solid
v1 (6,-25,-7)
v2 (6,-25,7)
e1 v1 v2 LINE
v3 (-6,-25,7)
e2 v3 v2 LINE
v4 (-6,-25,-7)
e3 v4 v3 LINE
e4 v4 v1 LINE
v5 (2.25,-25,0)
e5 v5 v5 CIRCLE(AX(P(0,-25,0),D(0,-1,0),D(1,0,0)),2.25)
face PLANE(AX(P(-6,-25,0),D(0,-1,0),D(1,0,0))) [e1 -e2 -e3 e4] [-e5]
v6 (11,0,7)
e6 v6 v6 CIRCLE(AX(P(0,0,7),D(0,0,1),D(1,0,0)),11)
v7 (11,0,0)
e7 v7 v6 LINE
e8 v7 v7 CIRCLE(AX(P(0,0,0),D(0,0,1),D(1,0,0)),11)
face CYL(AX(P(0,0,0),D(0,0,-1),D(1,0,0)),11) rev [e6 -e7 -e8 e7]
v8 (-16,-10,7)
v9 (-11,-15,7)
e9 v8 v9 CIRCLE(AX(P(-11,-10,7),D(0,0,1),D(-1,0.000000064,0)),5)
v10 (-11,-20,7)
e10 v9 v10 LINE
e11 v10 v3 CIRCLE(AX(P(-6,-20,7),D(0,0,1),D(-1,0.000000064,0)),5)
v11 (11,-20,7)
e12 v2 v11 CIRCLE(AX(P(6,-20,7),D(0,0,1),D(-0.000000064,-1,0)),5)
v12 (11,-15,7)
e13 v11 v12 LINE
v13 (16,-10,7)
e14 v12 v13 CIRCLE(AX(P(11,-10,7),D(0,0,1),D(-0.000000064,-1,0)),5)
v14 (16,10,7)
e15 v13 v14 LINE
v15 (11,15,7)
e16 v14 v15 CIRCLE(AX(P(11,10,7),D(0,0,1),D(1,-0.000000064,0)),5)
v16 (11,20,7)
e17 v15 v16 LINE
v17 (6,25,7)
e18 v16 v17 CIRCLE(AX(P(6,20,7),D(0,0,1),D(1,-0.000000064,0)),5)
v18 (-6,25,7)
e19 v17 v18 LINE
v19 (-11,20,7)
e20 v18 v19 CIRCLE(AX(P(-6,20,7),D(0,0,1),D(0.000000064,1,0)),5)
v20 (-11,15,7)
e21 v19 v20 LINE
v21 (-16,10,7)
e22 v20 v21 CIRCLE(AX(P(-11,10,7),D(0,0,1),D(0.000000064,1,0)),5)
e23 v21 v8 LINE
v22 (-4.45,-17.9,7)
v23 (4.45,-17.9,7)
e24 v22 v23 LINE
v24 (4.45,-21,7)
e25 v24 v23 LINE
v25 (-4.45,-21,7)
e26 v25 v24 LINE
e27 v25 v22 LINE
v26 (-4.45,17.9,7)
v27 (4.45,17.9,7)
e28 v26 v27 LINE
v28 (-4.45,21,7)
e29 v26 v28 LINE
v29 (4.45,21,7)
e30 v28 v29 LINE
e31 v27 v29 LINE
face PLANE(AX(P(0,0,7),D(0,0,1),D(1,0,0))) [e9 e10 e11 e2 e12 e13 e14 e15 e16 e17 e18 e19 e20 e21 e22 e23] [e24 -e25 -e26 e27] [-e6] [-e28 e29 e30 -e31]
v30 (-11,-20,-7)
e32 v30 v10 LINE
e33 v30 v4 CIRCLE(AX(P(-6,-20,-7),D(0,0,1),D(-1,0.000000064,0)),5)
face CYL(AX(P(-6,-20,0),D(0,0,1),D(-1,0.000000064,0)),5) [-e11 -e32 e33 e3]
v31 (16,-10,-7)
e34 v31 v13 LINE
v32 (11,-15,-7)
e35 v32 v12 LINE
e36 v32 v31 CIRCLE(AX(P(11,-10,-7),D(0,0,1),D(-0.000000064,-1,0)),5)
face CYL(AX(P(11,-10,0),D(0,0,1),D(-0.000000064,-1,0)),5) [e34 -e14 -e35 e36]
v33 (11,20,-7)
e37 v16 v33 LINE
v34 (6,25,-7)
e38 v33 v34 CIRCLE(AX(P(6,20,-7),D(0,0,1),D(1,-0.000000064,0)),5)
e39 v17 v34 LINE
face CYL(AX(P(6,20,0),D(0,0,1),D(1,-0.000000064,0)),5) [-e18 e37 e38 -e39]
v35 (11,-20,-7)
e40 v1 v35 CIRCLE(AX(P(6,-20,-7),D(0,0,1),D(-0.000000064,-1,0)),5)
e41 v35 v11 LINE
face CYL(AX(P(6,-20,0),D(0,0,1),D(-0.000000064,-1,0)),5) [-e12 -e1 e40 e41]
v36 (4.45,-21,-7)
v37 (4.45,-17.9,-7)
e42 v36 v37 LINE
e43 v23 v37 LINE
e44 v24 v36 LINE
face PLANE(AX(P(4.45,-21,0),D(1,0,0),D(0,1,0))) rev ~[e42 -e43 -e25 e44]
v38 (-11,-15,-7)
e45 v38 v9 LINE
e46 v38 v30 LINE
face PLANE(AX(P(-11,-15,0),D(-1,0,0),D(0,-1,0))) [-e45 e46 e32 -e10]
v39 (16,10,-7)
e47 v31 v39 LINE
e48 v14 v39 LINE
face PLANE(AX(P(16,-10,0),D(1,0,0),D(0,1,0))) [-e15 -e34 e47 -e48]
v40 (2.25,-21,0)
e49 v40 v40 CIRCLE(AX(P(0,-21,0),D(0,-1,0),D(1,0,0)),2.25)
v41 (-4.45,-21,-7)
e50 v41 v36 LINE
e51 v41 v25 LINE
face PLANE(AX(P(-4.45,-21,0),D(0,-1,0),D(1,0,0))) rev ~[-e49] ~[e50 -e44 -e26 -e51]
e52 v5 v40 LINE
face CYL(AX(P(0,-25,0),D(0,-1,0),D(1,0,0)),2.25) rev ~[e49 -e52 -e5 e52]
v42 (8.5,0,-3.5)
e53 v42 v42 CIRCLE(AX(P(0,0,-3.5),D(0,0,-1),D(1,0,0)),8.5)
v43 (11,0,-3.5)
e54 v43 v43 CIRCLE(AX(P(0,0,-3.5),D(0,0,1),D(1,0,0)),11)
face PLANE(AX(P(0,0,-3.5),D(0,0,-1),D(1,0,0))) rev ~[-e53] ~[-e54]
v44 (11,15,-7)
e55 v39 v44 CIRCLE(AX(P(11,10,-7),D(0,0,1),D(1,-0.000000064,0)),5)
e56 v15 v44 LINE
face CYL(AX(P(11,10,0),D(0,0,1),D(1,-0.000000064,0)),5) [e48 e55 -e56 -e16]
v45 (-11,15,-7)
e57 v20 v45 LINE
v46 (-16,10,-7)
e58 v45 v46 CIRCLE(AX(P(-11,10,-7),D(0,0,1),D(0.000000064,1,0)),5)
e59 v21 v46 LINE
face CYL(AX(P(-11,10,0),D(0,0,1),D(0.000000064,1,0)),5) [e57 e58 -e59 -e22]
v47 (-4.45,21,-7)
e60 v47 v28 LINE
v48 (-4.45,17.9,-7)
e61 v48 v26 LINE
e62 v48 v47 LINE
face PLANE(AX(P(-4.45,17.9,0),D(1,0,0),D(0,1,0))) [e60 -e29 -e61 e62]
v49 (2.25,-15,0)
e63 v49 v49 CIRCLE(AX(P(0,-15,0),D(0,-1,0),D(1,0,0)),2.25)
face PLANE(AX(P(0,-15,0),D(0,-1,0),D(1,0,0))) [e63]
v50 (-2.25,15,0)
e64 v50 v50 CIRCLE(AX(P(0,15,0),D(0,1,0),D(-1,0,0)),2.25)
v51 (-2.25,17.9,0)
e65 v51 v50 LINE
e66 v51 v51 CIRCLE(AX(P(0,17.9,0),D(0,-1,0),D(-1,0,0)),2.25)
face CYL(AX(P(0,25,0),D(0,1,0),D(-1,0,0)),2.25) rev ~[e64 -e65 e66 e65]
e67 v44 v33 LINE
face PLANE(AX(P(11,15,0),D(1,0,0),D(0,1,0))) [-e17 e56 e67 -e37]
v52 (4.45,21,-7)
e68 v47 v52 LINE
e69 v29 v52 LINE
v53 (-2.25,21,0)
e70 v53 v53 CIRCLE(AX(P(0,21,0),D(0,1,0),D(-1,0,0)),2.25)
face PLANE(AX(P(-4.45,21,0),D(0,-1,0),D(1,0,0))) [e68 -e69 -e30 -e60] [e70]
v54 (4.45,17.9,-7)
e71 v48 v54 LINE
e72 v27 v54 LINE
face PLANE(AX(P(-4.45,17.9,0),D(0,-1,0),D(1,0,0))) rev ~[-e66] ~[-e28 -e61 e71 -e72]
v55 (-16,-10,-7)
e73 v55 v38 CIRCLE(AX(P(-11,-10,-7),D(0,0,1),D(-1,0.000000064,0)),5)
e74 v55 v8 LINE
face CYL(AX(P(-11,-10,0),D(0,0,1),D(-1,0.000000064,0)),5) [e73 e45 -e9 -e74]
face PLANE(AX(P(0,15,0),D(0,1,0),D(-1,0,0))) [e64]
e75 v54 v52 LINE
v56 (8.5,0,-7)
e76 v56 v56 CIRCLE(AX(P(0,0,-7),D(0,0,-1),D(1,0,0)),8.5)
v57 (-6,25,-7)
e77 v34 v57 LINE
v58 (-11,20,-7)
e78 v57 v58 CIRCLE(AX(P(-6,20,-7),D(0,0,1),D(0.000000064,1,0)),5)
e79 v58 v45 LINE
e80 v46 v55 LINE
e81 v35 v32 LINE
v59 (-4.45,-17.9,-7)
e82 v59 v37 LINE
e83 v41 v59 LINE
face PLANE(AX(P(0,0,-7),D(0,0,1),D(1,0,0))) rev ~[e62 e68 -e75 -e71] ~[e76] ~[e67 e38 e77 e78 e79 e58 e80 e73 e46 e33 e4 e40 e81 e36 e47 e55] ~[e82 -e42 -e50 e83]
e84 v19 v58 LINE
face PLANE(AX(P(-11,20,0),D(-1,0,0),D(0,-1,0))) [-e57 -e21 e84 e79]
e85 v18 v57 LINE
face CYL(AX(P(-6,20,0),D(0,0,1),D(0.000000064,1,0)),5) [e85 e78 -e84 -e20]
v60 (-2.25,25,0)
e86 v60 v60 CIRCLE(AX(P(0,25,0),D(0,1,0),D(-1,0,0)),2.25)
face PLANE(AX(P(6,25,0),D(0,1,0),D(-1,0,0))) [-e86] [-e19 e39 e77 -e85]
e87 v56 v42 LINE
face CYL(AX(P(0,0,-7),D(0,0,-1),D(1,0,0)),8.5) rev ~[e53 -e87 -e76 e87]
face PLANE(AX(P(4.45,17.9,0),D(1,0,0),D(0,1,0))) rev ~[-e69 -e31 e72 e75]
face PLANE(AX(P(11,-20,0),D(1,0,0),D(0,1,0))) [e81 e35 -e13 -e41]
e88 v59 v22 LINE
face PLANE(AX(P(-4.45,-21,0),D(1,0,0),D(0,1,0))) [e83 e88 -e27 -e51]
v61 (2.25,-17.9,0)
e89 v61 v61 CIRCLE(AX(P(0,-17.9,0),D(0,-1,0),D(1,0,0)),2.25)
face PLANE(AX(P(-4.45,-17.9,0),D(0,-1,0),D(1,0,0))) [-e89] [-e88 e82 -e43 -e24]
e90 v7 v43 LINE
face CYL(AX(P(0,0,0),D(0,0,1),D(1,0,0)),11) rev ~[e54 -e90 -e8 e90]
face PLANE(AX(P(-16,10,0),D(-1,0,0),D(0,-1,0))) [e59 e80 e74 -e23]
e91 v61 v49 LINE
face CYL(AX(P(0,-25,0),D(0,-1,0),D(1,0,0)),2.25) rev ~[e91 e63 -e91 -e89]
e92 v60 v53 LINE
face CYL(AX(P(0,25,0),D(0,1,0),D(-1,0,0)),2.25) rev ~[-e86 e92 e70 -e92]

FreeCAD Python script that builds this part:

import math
import FreeCAD as App
import Part
import Sketcher

V = App.Vector
Q = App.Units.Quantity

doc = App.newDocument("Part")
body = doc.addObject("PartDesign::Body", "Body")

sketch1 = body.newObject("Sketcher::SketchObject", "Sketch")
sketch1.AttachmentSupport = (doc.getObject("XY_Plane"), [""])
sketch1.MapMode = "FlatFace"
sketch1.addGeometry([
    Part.LineSegment(V(-16, 10, 0), V(-16, -10, 0)),
    Part.ArcOfCircle(Part.Circle(V(-11, -10, 0), V(0, 0, 1), 5), math.radians(180), math.radians(270)),
    Part.LineSegment(V(-11, -15, 0), V(-11, -20, 0)),
    Part.ArcOfCircle(Part.Circle(V(-6, -20, 0), V(0, 0, 1), 5), math.radians(180), math.radians(270)),
    Part.LineSegment(V(-6, -25, 0), V(6, -25, 0)),
    Part.ArcOfCircle(Part.Circle(V(6, -20, 0), V(0, 0, 1), 5), math.radians(-90), math.radians(0)),
    Part.LineSegment(V(11, -20, 0), V(11, -15, 0)),
    Part.ArcOfCircle(Part.Circle(V(11, -10, 0), V(0, 0, 1), 5), math.radians(-90), math.radians(0)),
    Part.LineSegment(V(16, -10, 0), V(16, 10, 0)),
    Part.ArcOfCircle(Part.Circle(V(11, 10, 0), V(0, 0, 1), 5), math.radians(0), math.radians(90)),
    Part.LineSegment(V(11, 15, 0), V(11, 20, 0)),
    Part.ArcOfCircle(Part.Circle(V(6, 20, 0), V(0, 0, 1), 5), math.radians(0), math.radians(90)),
    Part.LineSegment(V(6, 25, 0), V(-6, 25, 0)),
    Part.ArcOfCircle(Part.Circle(V(-6, 20, 0), V(0, 0, 1), 5), math.radians(90), math.radians(180)),
    Part.LineSegment(V(-11, 20, 0), V(-11, 15, 0)),
    Part.ArcOfCircle(Part.Circle(V(-11, 10, 0), V(0, 0, 1), 5), math.radians(90), math.radians(180)),
    Part.LineSegment(V(4.5, -21, 0), V(-4.5, -21, 0)),
    Part.LineSegment(V(-4.5, -21, 0), V(-4.5, -17.9, 0)),
    Part.LineSegment(V(-4.5, -17.9, 0), V(4.5, -17.9, 0)),
    Part.LineSegment(V(4.5, -17.9, 0), V(4.5, -21, 0)),
    Part.Circle(V(0, 0, 0), V(0, 0, 1), 11),
    Part.LineSegment(V(4.5, 17.9, 0), V(-4.5, 17.9, 0)),
    Part.LineSegment(V(-4.5, 17.9, 0), V(-4.5, 21, 0)),
    Part.LineSegment(V(-4.5, 21, 0), V(4.5, 21, 0)),
    Part.LineSegment(V(4.5, 21, 0), V(4.5, 17.9, 0)),
], False)
sketch1.addConstraint([
    Sketcher.Constraint("Tangent", 0, 2, 1, 1),
    Sketcher.Constraint("Coincident", 1, 2, 2, 1),
    Sketcher.Constraint("Tangent", 2, 2, 3, 1),
    Sketcher.Constraint("Tangent", 3, 2, 4, 1),
    Sketcher.Constraint("Tangent", 4, 2, 5, 1),
    Sketcher.Constraint("Tangent", 5, 2, 6, 1),
    Sketcher.Constraint("Coincident", 6, 2, 7, 1),
    Sketcher.Constraint("Tangent", 7, 2, 8, 1),
    Sketcher.Constraint("Tangent", 8, 2, 9, 1),
    Sketcher.Constraint("Coincident", 9, 2, 10, 1),
    Sketcher.Constraint("Tangent", 10, 2, 11, 1),
    Sketcher.Constraint("Tangent", 11, 2, 12, 1),
    Sketcher.Constraint("Tangent", 12, 2, 13, 1),
    Sketcher.Constraint("Tangent", 13, 2, 14, 1),
    Sketcher.Constraint("Coincident", 14, 2, 15, 1),
    Sketcher.Constraint("Tangent", 15, 2, 0, 1),
    Sketcher.Constraint("Coincident", 16, 2, 17, 1),
    Sketcher.Constraint("Coincident", 17, 2, 18, 1),
    Sketcher.Constraint("Coincident", 18, 2, 19, 1),
    Sketcher.Constraint("Coincident", 19, 2, 16, 1),
    Sketcher.Constraint("Coincident", 21, 2, 22, 1),
    Sketcher.Constraint("Coincident", 22, 2, 23, 1),
    Sketcher.Constraint("Coincident", 23, 2, 24, 1),
    Sketcher.Constraint("Coincident", 24, 2, 21, 1),
    Sketcher.Constraint("Vertical", 0),
    Sketcher.Constraint("Vertical", 2),
    Sketcher.Constraint("Horizontal", 4),
    Sketcher.Constraint("Vertical", 6),
    Sketcher.Constraint("Vertical", 8),
    Sketcher.Constraint("Vertical", 10),
    Sketcher.Constraint("Horizontal", 12),
    Sketcher.Constraint("Vertical", 14),
    Sketcher.Constraint("Horizontal", 16),
    Sketcher.Constraint("Vertical", 17),
    Sketcher.Constraint("Horizontal", 18),
    Sketcher.Constraint("Vertical", 19),
    Sketcher.Constraint("Horizontal", 21),
    Sketcher.Constraint("Vertical", 22),
    Sketcher.Constraint("Horizontal", 23),
    Sketcher.Constraint("Vertical", 24),
    Sketcher.Constraint("Coincident", 20, 3, -1, 1),
    Sketcher.Constraint("Equal", 1, 3),
    Sketcher.Constraint("Equal", 3, 5),
    Sketcher.Constraint("Equal", 5, 7),
    Sketcher.Constraint("Equal", 7, 9),
    Sketcher.Constraint("Equal", 9, 11),
    Sketcher.Constraint("Equal", 11, 13),
    Sketcher.Constraint("Equal", 13, 15),
    Sketcher.Constraint("Symmetric", 1, 3, 9, 3, -1, 1),
    Sketcher.Constraint("Symmetric", 3, 3, 11, 3, -1, 1),
    Sketcher.Constraint("Symmetric", 6, 2, 14, 2, -1, 1),
    Sketcher.Constraint("Symmetric", 18, 2, 21, 2, -1, 1),
    Sketcher.Constraint("Symmetric", 16, 2, 23, 2, -1, 1),
    Sketcher.Constraint("Symmetric", 1, 2, 6, 2, -2),
    Sketcher.Constraint("Vertical", 15, 3, 1, 2),
    Sketcher.Constraint("Vertical", 17, 2, 21, 2),
    Sketcher.Constraint("Diameter", 20, Q("22 mm")),
    Sketcher.Constraint("Radius", 1, Q("5 mm")),
    Sketcher.Constraint("DistanceX", 4, 1, 4, 2, Q("12 mm")),
    Sketcher.Constraint("DistanceY", 0, 2, 0, 1, Q("20 mm")),
    Sketcher.Constraint("DistanceY", 2, 2, 2, 1, Q("5 mm")),
    Sketcher.Constraint("DistanceX", 16, 2, 16, 1, Q("8.9 mm")),
    Sketcher.Constraint("DistanceY", 17, 1, 17, 2, Q("3.1 mm")),
    Sketcher.Constraint("DistanceY", 16, 2, -1, 1, Q("21 mm")),
])
pad1 = body.newObject("PartDesign::Pad", "Pad")
pad1.Profile = sketch1
pad1.Type = "TwoLengths"
pad1.Length = 7
pad1.Length2 = 7

sketch2 = body.newObject("Sketcher::SketchObject", "Sketch001")
sketch2.AttachmentSupport = (doc.getObject("XZ_Plane"), [""])
sketch2.MapMode = "FlatFace"
sketch2.AttachmentOffset = App.Placement(V(0, 0, 25), App.Rotation())
sketch2.addGeometry(Part.Circle(V(0, 0, 0), V(0, 0, 1), 2.2), False)
sketch2.addConstraint([
    Sketcher.Constraint("Coincident", 0, 3, -1, 1),
    Sketcher.Constraint("Diameter", 0, Q("4.5 mm")),
])
pocket1 = body.newObject("PartDesign::Pocket", "Pocket")
pocket1.Profile = sketch2
pocket1.Length = 10

sketch3 = body.newObject("Sketcher::SketchObject", "Sketch002")
sketch3.AttachmentSupport = (doc.getObject("XZ_Plane"), [""])
sketch3.MapMode = "FlatFace"
sketch3.AttachmentOffset = App.Placement(V(0, 0, -25), App.Rotation())
sketch3.addGeometry(Part.Circle(V(0, 0, 0), V(0, 0, 1), 2.2), False)
sketch3.addConstraint([
    Sketcher.Constraint("Coincident", 0, 3, -1, 1),
    Sketcher.Constraint("Diameter", 0, Q("4.5 mm")),
])
pocket2 = body.newObject("PartDesign::Pocket", "Pocket001")
pocket2.Profile = sketch3
pocket2.Length = 10
pocket2.Reversed = True

sketch4 = body.newObject("Sketcher::SketchObject", "Sketch003")
sketch4.AttachmentSupport = (doc.getObject("XY_Plane"), [""])
sketch4.MapMode = "FlatFace"
sketch4.AttachmentOffset = App.Placement(V(0, 0, -7), App.Rotation())
sketch4.addGeometry([
    Part.Circle(V(0, 0, 0), V(0, 0, 1), 11),
    Part.Circle(V(0, 0, 0), V(0, 0, 1), 8),
], False)
sketch4.addConstraint([
    Sketcher.Constraint("Coincident", 0, 3, -1, 1),
    Sketcher.Constraint("Coincident", 1, 3, -1, 1),
    Sketcher.Constraint("Diameter", 1, Q("17 mm")),
    Sketcher.Constraint("Diameter", 0, Q("22.5 mm")),
])
pad2 = body.newObject("PartDesign::Pad", "Pad001")
pad2.Profile = sketch4
pad2.Length = 3.5

doc.recompute()
